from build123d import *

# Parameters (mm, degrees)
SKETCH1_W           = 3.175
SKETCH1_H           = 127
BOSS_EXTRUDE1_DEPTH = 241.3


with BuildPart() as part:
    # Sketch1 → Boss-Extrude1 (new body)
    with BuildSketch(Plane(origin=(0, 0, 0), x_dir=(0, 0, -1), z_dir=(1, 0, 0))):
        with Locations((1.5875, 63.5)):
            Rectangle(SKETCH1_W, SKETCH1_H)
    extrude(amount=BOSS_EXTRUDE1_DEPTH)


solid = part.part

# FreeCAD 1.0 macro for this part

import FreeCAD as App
import Part
import Sketcher

V = App.Vector
Q = App.Units.Quantity


def add_polygon(sketch, points):
    """Adds a closed chain of lines whose ends are joined by coincident constraints."""
    first, n = sketch.GeometryCount, len(points)
    for a, b in zip(points, points[1:] + points[:1]):
        sketch.addGeometry(Part.LineSegment(App.Vector(*a, 0), App.Vector(*b, 0)), False)
    for i in range(n):
        sketch.addConstraint(Sketcher.Constraint("Coincident", first + i, 2, first + (i + 1) % n, 1))

doc = App.newDocument("Part")
body = doc.addObject("PartDesign::Body", "Body")

sketch1 = body.newObject("Sketcher::SketchObject", "Sketch")
sketch1.AttachmentSupport = (doc.getObject("YZ_Plane"), [""])
sketch1.MapMode = "FlatFace"
add_polygon(sketch1, [(127, 0), (0, 0), (0, -3.2), (127, -3.2)])
sketch1.addConstraint(Sketcher.Constraint("Horizontal", 0))
sketch1.addConstraint(Sketcher.Constraint("Vertical", 1))
sketch1.addConstraint(Sketcher.Constraint("Horizontal", 2))
sketch1.addConstraint(Sketcher.Constraint("Vertical", 3))
sketch1.addConstraint(Sketcher.Constraint("Coincident", 0, 2, -1, 1))
sketch1.addConstraint(Sketcher.Constraint("DistanceX", 0, 2, 0, 1, Q("5 in")))
sketch1.addConstraint(Sketcher.Constraint("DistanceY", 1, 2, 1, 1, Q("0.125 in")))
pad1 = body.newObject("PartDesign::Pad", "Pad")
pad1.Profile = sketch1
pad1.Length = Q("9.5 in")

doc.recompute()
